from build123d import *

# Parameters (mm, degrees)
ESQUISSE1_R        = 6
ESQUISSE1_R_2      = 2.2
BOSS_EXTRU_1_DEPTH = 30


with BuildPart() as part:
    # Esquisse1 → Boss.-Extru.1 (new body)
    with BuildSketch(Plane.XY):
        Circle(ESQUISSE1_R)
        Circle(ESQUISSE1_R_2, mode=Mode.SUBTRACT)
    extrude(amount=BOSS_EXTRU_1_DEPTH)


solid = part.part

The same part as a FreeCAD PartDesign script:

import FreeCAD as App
import Part
import Sketcher

doc = App.newDocument("Part")
body = doc.addObject("PartDesign::Body", "Body")

# Sketch on XY plane
sketch1 = body.newObject("Sketcher::SketchObject", "Sketch")
sketch1.AttachmentSupport = (doc.getObject("XY_Plane"), [""])
sketch1.MapMode = "FlatFace"
sketch1.addGeometry([
    Part.Circle(App.Vector(0, 0, 0), App.Vector(0, 0, 1), 6),
    Part.Circle(App.Vector(0, 0, 0), App.Vector(0, 0, 1), 2.2),
], False)
sketch1.addConstraint([
    Sketcher.Constraint("Coincident", 0, 3, -1, 1),
    Sketcher.Constraint("Coincident", 1, 3, -1, 1),
    Sketcher.Constraint("Diameter", 0, 12.0),
    Sketcher.Constraint("Diameter", 1, 4.4),
])
pad1 = body.newObject("PartDesign::Pad", "Pad")
pad1.Profile = sketch1
pad1.Length = 30

doc.recompute()
